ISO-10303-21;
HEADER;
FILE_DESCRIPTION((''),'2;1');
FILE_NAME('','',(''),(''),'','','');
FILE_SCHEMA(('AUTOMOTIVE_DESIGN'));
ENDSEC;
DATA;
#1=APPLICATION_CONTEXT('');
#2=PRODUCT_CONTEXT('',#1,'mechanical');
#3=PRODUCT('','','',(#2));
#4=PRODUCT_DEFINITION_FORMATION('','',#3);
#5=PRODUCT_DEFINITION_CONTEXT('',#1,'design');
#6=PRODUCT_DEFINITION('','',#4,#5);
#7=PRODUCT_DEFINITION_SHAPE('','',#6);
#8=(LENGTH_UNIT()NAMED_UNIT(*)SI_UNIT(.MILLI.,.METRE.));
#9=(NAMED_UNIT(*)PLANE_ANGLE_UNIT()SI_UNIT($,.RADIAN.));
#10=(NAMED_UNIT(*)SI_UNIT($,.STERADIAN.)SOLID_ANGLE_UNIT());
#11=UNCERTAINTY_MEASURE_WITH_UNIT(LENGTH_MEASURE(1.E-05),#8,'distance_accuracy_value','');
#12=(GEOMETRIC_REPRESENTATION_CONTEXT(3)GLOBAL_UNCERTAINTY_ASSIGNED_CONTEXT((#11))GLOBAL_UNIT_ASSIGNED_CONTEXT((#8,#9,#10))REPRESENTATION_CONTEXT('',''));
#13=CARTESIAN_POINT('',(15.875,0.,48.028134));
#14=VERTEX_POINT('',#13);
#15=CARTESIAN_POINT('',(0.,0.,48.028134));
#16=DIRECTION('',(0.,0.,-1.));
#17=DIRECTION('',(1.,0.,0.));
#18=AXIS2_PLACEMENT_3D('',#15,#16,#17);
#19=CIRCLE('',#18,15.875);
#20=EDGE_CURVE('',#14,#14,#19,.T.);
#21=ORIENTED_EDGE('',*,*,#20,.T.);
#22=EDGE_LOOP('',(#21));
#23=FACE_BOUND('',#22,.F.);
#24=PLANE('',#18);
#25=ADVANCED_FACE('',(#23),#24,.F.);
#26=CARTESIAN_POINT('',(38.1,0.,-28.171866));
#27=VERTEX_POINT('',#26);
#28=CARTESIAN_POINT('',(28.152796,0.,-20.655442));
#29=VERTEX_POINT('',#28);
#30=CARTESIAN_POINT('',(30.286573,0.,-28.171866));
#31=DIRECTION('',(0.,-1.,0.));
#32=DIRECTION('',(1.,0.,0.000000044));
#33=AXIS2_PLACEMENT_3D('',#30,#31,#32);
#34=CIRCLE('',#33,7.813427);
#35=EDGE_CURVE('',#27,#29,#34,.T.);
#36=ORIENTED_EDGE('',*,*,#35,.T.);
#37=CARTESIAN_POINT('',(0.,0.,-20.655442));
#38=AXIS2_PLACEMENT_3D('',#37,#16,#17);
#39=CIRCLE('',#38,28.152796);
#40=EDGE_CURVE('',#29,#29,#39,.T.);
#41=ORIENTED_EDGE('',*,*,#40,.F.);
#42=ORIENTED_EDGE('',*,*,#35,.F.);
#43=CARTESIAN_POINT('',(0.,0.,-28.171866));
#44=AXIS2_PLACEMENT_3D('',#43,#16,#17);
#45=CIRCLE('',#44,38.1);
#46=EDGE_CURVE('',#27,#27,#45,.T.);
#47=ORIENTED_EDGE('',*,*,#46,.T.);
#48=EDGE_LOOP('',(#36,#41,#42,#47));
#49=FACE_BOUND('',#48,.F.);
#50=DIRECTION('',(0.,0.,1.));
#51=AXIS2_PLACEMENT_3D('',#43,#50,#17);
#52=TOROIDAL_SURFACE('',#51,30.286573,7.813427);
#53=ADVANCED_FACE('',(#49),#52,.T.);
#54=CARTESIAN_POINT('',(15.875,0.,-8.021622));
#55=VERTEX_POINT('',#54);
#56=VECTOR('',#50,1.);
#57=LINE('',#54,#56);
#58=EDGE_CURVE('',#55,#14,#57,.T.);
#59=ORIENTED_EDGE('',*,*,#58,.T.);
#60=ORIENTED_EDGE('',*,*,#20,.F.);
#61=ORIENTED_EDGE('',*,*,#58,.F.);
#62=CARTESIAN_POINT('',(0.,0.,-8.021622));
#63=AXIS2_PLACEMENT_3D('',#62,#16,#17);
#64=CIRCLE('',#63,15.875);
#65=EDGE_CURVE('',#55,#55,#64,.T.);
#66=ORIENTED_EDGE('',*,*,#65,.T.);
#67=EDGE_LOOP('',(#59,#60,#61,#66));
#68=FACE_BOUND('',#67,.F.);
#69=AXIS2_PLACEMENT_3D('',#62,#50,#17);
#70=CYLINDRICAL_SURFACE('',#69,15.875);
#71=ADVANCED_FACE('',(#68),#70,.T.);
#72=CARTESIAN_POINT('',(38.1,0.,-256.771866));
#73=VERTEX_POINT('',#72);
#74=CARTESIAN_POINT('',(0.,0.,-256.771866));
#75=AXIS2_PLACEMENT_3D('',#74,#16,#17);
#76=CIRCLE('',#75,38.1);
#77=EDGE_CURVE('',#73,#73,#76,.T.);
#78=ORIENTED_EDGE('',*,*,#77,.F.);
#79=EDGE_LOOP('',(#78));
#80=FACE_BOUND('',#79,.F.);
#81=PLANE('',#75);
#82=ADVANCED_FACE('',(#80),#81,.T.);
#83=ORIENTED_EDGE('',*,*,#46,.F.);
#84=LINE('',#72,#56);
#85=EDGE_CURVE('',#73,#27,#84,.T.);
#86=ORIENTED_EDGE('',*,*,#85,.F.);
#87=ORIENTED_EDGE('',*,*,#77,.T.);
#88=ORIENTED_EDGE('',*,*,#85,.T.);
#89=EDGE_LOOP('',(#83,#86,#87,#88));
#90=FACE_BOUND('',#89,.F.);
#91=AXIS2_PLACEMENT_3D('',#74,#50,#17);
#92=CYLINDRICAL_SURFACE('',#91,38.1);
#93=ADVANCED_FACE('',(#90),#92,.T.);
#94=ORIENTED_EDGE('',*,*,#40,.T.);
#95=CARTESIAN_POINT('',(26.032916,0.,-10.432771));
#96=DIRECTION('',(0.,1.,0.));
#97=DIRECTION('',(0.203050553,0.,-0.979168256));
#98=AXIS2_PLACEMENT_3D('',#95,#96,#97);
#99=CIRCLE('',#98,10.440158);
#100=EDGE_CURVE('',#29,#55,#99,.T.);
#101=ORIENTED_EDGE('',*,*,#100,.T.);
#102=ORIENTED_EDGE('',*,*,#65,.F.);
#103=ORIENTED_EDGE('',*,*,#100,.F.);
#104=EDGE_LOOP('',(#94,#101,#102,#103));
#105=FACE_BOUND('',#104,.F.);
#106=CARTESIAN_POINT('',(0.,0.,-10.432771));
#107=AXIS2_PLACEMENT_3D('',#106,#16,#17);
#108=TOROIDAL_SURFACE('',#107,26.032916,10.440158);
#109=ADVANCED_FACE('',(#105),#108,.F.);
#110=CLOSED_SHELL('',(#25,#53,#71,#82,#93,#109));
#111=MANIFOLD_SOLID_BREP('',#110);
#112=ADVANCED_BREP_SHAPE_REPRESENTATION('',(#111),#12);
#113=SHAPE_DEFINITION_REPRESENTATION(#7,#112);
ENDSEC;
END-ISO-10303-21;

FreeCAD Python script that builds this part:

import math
import FreeCAD as App
import Part
import Sketcher
from FreeCAD import Vector
Q = App.Units.Quantity

doc = App.newDocument("Part")
body = doc.addObject("PartDesign::Body", "Body")

sketch1 = body.newObject("Sketcher::SketchObject", "Sketch")
sketch1.AttachmentSupport = (doc.getObject("XZ_Plane"), [""])
sketch1.MapMode = "FlatFace"
sketch1.addGeometry([
    Part.LineSegment(Vector(16, 48, 0), Vector(0, 48, 0)),
    Part.LineSegment(Vector(0, 48, 0), Vector(0, -257, 0)),
    Part.LineSegment(Vector(0, -257, 0), Vector(38, -257, 0)),
    Part.LineSegment(Vector(38, -257, 0), Vector(38, -28, 0)),
    Part.ArcOfCircle(Part.Circle(Vector(30, -28, 0), Vector(0, 0, 1), 8), math.radians(0), math.radians(106)),
    Part.ArcOfCircle(Part.Circle(Vector(26, -10, 0), Vector(0, 0, 1), 10), math.radians(167), math.radians(282)),
    Part.LineSegment(Vector(16, -8, 0), Vector(16, 48, 0)),
], False)
sketch1.addConstraint([
    Sketcher.Constraint("Coincident", 0, 2, 1, 1),
    Sketcher.Constraint("Coincident", 1, 2, 2, 1),
    Sketcher.Constraint("Coincident", 2, 2, 3, 1),
    Sketcher.Constraint("Tangent", 3, 2, 4, 1),
    Sketcher.Constraint("Coincident", 4, 2, 5, 2),
    Sketcher.Constraint("Coincident", 5, 1, 6, 1),
    Sketcher.Constraint("Coincident", 6, 2, 0, 1),
    Sketcher.Constraint("Horizontal", 0),
    Sketcher.Constraint("Vertical", 1),
    Sketcher.Constraint("Horizontal", 2),
    Sketcher.Constraint("Vertical", 3),
    Sketcher.Constraint("Vertical", 6),
    Sketcher.Constraint("PointOnObject", 0, 2, -2),
    Sketcher.Constraint("DistanceY", 1, 2, 1, 1, Q("12 in")),
    Sketcher.Constraint("DistanceY", 3, 1, 3, 2, Q("9 in")),
    Sketcher.Constraint("DistanceX", 2, 1, 2, 2, Q("1.5 in")),
    Sketcher.Constraint("DistanceX", 0, 2, 0, 1, Q("0.625 in")),
    Sketcher.Constraint("Radius", 4, 7.813427),
    Sketcher.Constraint("Radius", 5, 10.440158),
    Sketcher.Constraint("DistanceY", 6, 1, 6, 2, 56.049756),
    Sketcher.Constraint("DistanceY", 5, 3, -1, 1, 10.432771),
    Sketcher.Constraint("DistanceY", 4, 2, -1, 1, 20.655442),
])
revolution = body.newObject("PartDesign::Revolution", "Revolution")
revolution.Profile = sketch1
revolution.ReferenceAxis = (sketch1, ["V_Axis"])
revolution.Angle = 360

doc.recompute()
